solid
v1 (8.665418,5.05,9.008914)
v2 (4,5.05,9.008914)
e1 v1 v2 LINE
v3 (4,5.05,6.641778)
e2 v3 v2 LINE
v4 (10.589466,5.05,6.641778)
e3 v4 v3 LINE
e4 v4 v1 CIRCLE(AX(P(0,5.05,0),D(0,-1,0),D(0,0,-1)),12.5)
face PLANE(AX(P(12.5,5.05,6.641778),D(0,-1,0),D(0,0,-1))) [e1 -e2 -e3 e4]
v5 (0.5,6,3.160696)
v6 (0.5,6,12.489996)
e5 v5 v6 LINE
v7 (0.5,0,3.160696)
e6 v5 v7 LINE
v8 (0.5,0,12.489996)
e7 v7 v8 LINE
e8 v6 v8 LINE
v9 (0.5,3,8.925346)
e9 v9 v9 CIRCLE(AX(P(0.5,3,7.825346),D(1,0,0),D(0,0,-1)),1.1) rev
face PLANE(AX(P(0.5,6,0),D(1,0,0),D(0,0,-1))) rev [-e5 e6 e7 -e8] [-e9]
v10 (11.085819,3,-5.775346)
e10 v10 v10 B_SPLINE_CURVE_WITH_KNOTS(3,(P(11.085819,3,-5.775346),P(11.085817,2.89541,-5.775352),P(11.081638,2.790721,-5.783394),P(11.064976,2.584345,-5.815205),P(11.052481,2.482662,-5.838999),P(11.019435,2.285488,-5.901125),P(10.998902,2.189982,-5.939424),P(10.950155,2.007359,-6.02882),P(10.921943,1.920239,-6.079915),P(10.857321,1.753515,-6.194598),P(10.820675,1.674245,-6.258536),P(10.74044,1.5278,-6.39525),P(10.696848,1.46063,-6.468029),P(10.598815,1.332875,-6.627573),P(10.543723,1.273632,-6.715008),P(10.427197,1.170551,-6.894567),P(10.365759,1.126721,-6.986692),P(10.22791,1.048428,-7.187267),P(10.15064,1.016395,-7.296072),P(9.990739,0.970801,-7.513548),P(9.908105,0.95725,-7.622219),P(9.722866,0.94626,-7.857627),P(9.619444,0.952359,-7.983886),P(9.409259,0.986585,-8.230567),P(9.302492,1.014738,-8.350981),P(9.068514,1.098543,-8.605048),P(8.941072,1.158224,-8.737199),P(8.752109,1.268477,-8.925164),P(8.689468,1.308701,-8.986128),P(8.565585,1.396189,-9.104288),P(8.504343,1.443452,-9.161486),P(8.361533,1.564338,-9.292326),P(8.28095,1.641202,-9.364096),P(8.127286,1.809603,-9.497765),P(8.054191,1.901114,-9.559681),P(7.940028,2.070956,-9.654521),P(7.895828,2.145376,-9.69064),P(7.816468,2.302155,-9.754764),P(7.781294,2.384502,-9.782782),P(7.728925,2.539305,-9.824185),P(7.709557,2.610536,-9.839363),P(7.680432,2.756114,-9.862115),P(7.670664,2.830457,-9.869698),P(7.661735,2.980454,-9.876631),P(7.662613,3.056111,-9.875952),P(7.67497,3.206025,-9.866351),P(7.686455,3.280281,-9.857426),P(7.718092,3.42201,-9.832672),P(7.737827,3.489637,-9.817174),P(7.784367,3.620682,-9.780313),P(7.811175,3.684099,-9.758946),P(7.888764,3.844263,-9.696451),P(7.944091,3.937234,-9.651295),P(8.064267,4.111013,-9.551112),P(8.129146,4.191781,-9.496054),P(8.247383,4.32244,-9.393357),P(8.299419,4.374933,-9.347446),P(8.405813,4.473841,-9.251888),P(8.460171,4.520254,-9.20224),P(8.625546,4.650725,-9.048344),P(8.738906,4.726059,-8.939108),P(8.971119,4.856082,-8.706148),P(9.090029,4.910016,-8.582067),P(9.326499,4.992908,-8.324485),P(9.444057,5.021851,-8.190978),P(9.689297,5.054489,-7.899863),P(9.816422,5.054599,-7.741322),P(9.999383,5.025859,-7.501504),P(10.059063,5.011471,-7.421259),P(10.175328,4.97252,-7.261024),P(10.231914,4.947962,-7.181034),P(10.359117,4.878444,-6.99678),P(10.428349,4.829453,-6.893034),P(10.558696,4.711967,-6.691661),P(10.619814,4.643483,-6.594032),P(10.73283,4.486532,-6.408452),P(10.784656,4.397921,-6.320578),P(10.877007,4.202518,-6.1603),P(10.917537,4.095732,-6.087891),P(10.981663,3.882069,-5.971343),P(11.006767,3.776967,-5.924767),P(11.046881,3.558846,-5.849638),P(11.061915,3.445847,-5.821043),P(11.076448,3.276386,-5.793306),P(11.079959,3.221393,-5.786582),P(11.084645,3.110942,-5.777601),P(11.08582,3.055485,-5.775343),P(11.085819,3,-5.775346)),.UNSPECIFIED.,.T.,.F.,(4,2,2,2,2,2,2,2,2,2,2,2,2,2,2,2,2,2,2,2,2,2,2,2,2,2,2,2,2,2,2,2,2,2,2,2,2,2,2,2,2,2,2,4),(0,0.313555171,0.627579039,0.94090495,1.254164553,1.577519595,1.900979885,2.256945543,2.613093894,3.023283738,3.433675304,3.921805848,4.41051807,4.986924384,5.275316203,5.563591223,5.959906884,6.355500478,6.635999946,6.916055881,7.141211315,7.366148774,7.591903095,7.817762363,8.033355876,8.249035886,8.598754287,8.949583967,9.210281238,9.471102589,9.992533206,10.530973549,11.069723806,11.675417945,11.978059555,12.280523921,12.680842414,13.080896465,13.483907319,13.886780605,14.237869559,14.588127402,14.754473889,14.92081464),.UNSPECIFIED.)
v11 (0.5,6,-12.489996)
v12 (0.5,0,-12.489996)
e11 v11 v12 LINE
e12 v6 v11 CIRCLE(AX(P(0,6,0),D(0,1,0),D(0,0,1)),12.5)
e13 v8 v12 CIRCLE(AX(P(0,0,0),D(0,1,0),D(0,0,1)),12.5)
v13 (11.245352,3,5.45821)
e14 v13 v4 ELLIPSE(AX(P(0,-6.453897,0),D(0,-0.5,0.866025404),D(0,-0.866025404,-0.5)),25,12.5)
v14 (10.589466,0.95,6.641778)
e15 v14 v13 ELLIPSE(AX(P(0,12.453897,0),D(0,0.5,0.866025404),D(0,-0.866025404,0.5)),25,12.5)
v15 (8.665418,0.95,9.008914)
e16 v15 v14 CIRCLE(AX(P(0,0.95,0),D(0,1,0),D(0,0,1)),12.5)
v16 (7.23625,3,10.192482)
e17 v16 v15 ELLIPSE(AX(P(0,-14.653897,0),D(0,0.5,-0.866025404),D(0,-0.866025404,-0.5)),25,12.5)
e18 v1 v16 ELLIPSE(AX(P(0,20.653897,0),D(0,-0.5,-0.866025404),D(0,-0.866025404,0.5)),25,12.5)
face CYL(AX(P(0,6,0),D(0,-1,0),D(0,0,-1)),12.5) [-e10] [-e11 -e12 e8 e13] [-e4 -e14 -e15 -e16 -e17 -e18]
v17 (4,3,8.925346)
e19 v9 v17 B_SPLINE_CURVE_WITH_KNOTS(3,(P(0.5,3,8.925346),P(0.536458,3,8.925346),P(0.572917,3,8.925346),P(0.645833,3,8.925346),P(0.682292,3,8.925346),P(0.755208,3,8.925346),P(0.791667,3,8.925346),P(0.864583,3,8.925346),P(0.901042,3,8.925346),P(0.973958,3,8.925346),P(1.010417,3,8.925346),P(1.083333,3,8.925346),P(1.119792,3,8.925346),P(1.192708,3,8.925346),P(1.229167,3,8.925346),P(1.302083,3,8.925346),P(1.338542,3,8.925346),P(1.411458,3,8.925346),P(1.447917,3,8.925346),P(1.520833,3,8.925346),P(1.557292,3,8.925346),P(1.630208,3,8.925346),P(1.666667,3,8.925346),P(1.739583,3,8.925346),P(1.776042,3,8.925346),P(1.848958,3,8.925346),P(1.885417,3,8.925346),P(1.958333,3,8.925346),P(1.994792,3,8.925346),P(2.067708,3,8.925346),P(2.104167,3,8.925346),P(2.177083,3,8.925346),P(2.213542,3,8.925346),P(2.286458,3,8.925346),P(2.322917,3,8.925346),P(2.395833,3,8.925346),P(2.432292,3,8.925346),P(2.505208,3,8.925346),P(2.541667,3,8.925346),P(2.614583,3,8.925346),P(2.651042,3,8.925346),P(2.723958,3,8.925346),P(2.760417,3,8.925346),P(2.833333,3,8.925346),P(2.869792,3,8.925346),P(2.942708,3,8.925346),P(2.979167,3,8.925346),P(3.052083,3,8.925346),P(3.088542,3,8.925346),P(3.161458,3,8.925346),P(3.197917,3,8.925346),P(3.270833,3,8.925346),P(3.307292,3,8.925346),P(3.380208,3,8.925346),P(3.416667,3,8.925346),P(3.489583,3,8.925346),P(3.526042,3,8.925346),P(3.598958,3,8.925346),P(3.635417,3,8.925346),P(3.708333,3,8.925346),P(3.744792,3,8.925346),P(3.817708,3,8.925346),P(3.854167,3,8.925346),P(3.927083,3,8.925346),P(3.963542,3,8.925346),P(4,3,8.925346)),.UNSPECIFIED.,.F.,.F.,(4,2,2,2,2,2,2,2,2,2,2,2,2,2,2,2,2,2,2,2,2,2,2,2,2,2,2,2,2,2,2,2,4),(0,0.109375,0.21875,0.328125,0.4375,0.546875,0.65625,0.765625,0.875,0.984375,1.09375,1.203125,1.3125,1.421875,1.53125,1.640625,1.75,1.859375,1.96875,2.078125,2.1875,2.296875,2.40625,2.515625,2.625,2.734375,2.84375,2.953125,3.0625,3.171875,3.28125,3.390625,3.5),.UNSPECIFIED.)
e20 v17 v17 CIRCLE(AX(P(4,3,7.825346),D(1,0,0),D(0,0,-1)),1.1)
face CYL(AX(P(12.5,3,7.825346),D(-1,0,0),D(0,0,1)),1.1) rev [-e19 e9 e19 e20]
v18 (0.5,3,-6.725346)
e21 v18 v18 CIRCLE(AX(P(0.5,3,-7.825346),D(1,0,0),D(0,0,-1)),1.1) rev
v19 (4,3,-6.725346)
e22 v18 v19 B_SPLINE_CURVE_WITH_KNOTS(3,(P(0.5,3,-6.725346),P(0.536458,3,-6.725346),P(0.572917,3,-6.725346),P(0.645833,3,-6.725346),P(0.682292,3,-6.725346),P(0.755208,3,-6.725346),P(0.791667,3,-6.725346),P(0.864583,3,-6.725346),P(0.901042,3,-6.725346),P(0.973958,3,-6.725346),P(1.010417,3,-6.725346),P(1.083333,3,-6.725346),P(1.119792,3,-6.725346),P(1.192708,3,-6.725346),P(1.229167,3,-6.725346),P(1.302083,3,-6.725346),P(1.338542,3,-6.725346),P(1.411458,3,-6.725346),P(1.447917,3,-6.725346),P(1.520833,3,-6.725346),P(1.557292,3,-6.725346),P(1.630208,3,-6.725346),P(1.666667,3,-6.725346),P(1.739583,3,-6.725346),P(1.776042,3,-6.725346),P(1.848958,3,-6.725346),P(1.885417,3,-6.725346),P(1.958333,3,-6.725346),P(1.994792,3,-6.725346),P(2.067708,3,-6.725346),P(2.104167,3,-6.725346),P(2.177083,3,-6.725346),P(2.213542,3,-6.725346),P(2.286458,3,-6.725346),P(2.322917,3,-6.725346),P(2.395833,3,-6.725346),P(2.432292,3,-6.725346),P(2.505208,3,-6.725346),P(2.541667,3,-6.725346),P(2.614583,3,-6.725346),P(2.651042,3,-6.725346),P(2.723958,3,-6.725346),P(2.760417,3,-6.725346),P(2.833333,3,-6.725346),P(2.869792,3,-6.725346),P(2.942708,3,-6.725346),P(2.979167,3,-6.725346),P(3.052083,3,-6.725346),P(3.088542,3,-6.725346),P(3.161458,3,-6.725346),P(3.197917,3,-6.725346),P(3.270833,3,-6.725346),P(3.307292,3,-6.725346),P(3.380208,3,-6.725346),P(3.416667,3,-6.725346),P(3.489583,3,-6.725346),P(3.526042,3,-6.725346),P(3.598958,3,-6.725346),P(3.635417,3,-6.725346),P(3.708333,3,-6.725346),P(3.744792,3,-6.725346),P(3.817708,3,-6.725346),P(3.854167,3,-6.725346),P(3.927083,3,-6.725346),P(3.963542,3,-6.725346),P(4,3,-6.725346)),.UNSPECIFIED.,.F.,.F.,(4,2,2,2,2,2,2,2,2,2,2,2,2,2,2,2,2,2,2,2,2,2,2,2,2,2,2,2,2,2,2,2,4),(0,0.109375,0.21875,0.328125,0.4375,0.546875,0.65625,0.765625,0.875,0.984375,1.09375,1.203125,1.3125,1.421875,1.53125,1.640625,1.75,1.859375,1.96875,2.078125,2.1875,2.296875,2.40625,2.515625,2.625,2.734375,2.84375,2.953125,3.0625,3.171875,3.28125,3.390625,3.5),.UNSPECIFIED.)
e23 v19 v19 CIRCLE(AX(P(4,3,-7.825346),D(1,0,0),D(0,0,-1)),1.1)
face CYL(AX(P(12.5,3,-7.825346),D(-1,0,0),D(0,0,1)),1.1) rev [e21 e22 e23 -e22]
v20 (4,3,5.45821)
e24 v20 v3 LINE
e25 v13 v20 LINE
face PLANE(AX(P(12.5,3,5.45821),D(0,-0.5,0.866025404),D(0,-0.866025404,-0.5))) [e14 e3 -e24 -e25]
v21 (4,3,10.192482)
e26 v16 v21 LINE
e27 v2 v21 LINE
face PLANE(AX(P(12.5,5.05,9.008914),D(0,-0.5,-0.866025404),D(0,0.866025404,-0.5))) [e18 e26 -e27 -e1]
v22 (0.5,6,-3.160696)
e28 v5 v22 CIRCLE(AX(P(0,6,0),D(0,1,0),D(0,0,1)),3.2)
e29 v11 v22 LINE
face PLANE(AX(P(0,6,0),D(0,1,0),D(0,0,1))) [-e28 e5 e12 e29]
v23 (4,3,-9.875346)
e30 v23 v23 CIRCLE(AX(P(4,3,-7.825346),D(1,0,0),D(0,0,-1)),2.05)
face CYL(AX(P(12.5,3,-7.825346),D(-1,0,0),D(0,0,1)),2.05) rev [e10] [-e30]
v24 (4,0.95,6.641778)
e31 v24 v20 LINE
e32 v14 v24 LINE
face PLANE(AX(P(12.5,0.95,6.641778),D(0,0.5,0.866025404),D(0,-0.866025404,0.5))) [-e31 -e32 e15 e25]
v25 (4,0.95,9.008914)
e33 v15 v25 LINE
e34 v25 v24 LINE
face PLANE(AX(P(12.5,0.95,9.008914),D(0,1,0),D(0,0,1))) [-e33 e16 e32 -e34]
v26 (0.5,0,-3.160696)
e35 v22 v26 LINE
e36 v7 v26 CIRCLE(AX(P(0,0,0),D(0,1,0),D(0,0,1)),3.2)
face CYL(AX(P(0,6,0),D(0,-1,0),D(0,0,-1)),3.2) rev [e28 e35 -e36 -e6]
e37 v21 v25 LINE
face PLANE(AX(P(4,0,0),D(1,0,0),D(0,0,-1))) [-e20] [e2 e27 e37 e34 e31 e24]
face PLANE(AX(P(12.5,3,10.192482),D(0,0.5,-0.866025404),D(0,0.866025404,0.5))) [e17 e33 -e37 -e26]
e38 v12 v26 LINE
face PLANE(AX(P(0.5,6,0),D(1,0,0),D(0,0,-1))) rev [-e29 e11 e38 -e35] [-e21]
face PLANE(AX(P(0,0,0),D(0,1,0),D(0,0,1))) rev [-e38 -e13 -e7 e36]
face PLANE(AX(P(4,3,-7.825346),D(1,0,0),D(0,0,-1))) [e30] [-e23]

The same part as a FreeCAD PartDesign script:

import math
import FreeCAD as App
import Part
import Sketcher
Q = App.Units.Quantity

doc = App.newDocument("Part")
body = doc.addObject("PartDesign::Body", "Body")

sketch1 = body.newObject("Sketcher::SketchObject", "Sketch")
sketch1.AttachmentSupport = (doc.getObject("XZ_Plane"), [""])
sketch1.MapMode = "FlatFace"
sketch1.addGeometry([
    Part.ArcOfCircle(Part.Circle(App.Vector(0, 0, 0), App.Vector(0, 0, 1), 12.5), math.radians(-87.707557), math.radians(0)),
    Part.LineSegment(App.Vector(0.5, -12.489996, 0), App.Vector(0.5, -3.160696, 0)),
    Part.ArcOfCircle(Part.Circle(App.Vector(0, 0, 0), App.Vector(0, 0, 1), 3.2), math.radians(-81.010701), math.radians(0)),
    Part.ArcOfCircle(Part.Circle(App.Vector(0, 0, 0), App.Vector(0, 0, 1), 3.2), math.radians(0), math.radians(81.010701)),
    Part.LineSegment(App.Vector(0.5, 3.160696, 0), App.Vector(0.5, 12.489996, 0)),
    Part.ArcOfCircle(Part.Circle(App.Vector(0, 0, 0), App.Vector(0, 0, 1), 12.5), math.radians(0), math.radians(87.707557)),
], False)
sketch1.addConstraint([
    Sketcher.Constraint("Coincident", 0, 1, 1, 1),
    Sketcher.Constraint("Coincident", 1, 2, 2, 1),
    Sketcher.Constraint("Tangent", 2, 2, 3, 1),
    Sketcher.Constraint("Coincident", 3, 2, 4, 1),
    Sketcher.Constraint("Coincident", 4, 2, 5, 2),
    Sketcher.Constraint("Tangent", 5, 1, 0, 2),
    Sketcher.Constraint("Vertical", 1),
    Sketcher.Constraint("Vertical", 4),
    Sketcher.Constraint("Coincident", 0, 3, -1, 1),
    Sketcher.Constraint("Coincident", 2, 3, -1, 1),
    Sketcher.Constraint("Equal", 2, 3),
    Sketcher.Constraint("Equal", 0, 5),
    Sketcher.Constraint("PointOnObject", 2, 2, -1),
    Sketcher.Constraint("PointOnObject", 5, 1, -1),
    Sketcher.Constraint("Vertical", 1, 2, 3, 2),
    Sketcher.Constraint("Radius", 0, 12.5),
    Sketcher.Constraint("Radius", 2, 3.2),
    Sketcher.Constraint("DistanceX", 3, 2, 5, 1, 12.0),
])
pad1 = body.newObject("PartDesign::Pad", "Pad")
pad1.Profile = sketch1
pad1.Length = 6
pad1.Reversed = True

sketch2 = body.newObject("Sketcher::SketchObject", "Sketch001")
sketch2.AttachmentSupport = (doc.getObject("YZ_Plane"), [""])
sketch2.MapMode = "FlatFace"
sketch2.addGeometry([
    Part.Circle(App.Vector(3, -7.825346, 0), App.Vector(0, 0, 1), 1.1),
    Part.Circle(App.Vector(3, 7.825346, 0), App.Vector(0, 0, 1), 1.1),
], False)
sketch2.addConstraint([
    Sketcher.Constraint("Equal", 0, 1),
    Sketcher.Constraint("Symmetric", 0, 3, 1, 3, -1),
    Sketcher.Constraint("Diameter", 0, 2.2),
    Sketcher.Constraint("DistanceX", -1, 1, 0, 3, 3.0),
    Sketcher.Constraint("DistanceY", 0, 3, -1, 1, 7.825346),
])
pocket1 = body.newObject("PartDesign::Pocket", "Pocket")
pocket1.Profile = sketch2
pocket1.Type = "ThroughAll"
pocket1.Reversed = True

sketch3 = body.newObject("Sketcher::SketchObject", "Sketch002")
sketch3.AttachmentSupport = (doc.getObject("YZ_Plane"), [""])
sketch3.MapMode = "FlatFace"
sketch3.AttachmentOffset = App.Placement(App.Vector(0, 0, 4), App.Rotation())
sketch3.addGeometry([
    Part.Circle(App.Vector(3, -7.825346, 0), App.Vector(0, 0, 1), 2.05),
    Part.LineSegment(App.Vector(0.95, 9.008914, 0), App.Vector(0.95, 6.641778, 0)),
    Part.LineSegment(App.Vector(0.95, 6.641778, 0), App.Vector(3, 5.45821, 0)),
    Part.LineSegment(App.Vector(3, 5.45821, 0), App.Vector(5.05, 6.641778, 0)),
    Part.LineSegment(App.Vector(5.05, 6.641778, 0), App.Vector(5.05, 9.008914, 0)),
    Part.LineSegment(App.Vector(5.05, 9.008914, 0), App.Vector(3, 10.192482, 0)),
    Part.LineSegment(App.Vector(3, 10.192482, 0), App.Vector(0.95, 9.008914, 0)),
], False)
sketch3.addConstraint([
    Sketcher.Constraint("Coincident", 1, 2, 2, 1),
    Sketcher.Constraint("Coincident", 2, 2, 3, 1),
    Sketcher.Constraint("Coincident", 3, 2, 4, 1),
    Sketcher.Constraint("Coincident", 4, 2, 5, 1),
    Sketcher.Constraint("Coincident", 5, 2, 6, 1),
    Sketcher.Constraint("Coincident", 6, 2, 1, 1),
    Sketcher.Constraint("Vertical", 1),
    Sketcher.Constraint("Vertical", 4),
    Sketcher.Constraint("Parallel", 2, 5),
    Sketcher.Constraint("Parallel", 3, 6),
    Sketcher.Constraint("Horizontal", 1, 2, 3, 2),
    Sketcher.Constraint("Horizontal", 4, 2, 6, 2),
    Sketcher.Constraint("Vertical", 0, 3, 2, 2),
    Sketcher.Constraint("Vertical", 2, 2, 5, 2),
    Sketcher.Constraint("Diameter", 0, 4.1),
    Sketcher.Constraint("Angle", 2, Q("-30 deg")),
    Sketcher.Constraint("DistanceX", -1, 1, 0, 3, 3.0),
    Sketcher.Constraint("DistanceX", 1, 2, 3, 2, 4.1),
    Sketcher.Constraint("DistanceY", 1, 2, 1, 1, 2.367136),
    Sketcher.Constraint("DistanceY", -1, 1, 1, 2, 6.641778),
    Sketcher.Constraint("DistanceY", 0, 3, 4, 2, 16.83426),
])
pocket2 = body.newObject("PartDesign::Pocket", "Pocket001")
pocket2.Profile = sketch3
pocket2.Type = "ThroughAll"
pocket2.Reversed = True

doc.recompute()
